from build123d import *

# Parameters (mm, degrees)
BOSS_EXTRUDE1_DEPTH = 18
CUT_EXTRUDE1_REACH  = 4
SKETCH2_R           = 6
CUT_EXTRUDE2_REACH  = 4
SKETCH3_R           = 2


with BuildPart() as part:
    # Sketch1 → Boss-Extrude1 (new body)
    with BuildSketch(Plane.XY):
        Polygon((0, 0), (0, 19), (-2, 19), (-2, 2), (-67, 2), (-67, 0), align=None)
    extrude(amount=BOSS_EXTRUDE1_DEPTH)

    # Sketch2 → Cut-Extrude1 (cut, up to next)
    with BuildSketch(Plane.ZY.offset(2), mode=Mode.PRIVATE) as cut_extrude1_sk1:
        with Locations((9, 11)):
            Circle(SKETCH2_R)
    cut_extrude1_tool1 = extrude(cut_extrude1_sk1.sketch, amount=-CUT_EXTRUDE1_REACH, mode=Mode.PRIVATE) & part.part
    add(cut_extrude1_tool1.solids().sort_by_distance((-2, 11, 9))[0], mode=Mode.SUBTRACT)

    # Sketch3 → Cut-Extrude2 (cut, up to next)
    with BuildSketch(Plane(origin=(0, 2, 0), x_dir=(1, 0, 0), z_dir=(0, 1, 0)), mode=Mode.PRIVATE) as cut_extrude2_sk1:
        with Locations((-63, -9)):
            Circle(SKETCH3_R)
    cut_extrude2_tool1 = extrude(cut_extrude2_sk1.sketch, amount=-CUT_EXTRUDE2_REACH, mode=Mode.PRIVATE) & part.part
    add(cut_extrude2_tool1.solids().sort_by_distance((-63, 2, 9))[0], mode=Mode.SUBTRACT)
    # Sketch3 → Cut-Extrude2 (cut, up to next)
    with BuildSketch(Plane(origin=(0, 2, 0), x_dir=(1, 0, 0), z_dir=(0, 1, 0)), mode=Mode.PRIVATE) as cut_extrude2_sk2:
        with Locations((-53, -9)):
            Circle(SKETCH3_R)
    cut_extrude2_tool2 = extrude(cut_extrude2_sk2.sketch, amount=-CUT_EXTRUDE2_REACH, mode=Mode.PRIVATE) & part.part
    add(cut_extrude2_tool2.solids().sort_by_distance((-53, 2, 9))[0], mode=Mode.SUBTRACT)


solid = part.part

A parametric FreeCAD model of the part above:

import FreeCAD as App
import Part
import Sketcher

V = App.Vector
Q = App.Units.Quantity

doc = App.newDocument("Part")
params = doc.addObject("Spreadsheet::Sheet", "Params")
for row, (alias, value) in enumerate([
    ("sketch1_width", "2 mm"),
    ("sketch1_width2", "65 mm"),
    ("sketch1_height", "19 mm"),
    ("pad1_length", "18 mm"),
    ("sketch2_diameter", "12 mm"),
    ("sketch3_diameter", "4 mm"),
    ("sketch4_diameter", "4 mm"),
], start=1):
    params.set(f"A{row}", alias)
    params.set(f"B{row}", "=" + value)
    params.setAlias(f"B{row}", alias)

body = doc.addObject("PartDesign::Body", "Body")

sketch1 = body.newObject("Sketcher::SketchObject", "Sketch")
sketch1.AttachmentSupport = (doc.getObject("XY_Plane"), [""])
sketch1.MapMode = "FlatFace"
sketch1.addGeometry([
    Part.LineSegment(V(0, 0, 0), V(0, 19, 0)),
    Part.LineSegment(V(0, 19, 0), V(-2, 19, 0)),
    Part.LineSegment(V(-2, 19, 0), V(-2, 2, 0)),
    Part.LineSegment(V(-2, 2, 0), V(-67, 2, 0)),
    Part.LineSegment(V(-67, 2, 0), V(-67, 0, 0)),
    Part.LineSegment(V(-67, 0, 0), V(0, 0, 0)),
], False)
sketch1.addConstraint([
    Sketcher.Constraint("Coincident", 0, 2, 1, 1),
    Sketcher.Constraint("Coincident", 1, 2, 2, 1),
    Sketcher.Constraint("Coincident", 2, 2, 3, 1),
    Sketcher.Constraint("Coincident", 3, 2, 4, 1),
    Sketcher.Constraint("Coincident", 4, 2, 5, 1),
    Sketcher.Constraint("Coincident", 5, 2, 0, 1),
    Sketcher.Constraint("Vertical", 0),
    Sketcher.Constraint("Horizontal", 1),
    Sketcher.Constraint("Vertical", 2),
    Sketcher.Constraint("Horizontal", 3),
    Sketcher.Constraint("Vertical", 4),
    Sketcher.Constraint("Horizontal", 5),
    Sketcher.Constraint("Coincident", 5, 2, -1, 1),
    Sketcher.Constraint("Equal", 1, 4),
    Sketcher.Constraint("DistanceX", 1, 2, 1, 1, Q("2 mm")),
    Sketcher.Constraint("DistanceX", 3, 2, 3, 1, Q("65 mm")),
    Sketcher.Constraint("DistanceY", 0, 1, 0, 2, Q("19 mm")),
])
sketch1.setExpression("Constraints[14]", "Params.sketch1_width")
sketch1.setExpression("Constraints[15]", "Params.sketch1_width2")
sketch1.setExpression("Constraints[16]", "Params.sketch1_height")
pad1 = body.newObject("PartDesign::Pad", "Pad")
pad1.Profile = sketch1
pad1.setExpression("Length", "Params.pad1_length")

sketch2 = body.newObject("Sketcher::SketchObject", "Sketch001")
sketch2.AttachmentSupport = (doc.getObject("YZ_Plane"), [""])
sketch2.MapMode = "FlatFace"
sketch2.AttachmentOffset = App.Placement(V(0, 0, -2), App.Rotation())
sketch2.addGeometry(Part.Circle(V(11, 9, 0), V(0, 0, 1), 6), False)
sketch2.addConstraint([
    Sketcher.Constraint("Diameter", 0, Q("12 mm")),
    Sketcher.Constraint("DistanceX", -1, 1, 0, 3, Q("11 mm")),
    Sketcher.Constraint("DistanceY", -1, 1, 0, 3, Q("9 mm")),
])
sketch2.setExpression("Constraints[0]", "Params.sketch2_diameter")
pocket1 = body.newObject("PartDesign::Pocket", "Pocket")
pocket1.Profile = sketch2
pocket1.Type = "UpToFirst"
pocket1.Reversed = True

sketch3 = body.newObject("Sketcher::SketchObject", "Sketch002")
sketch3.AttachmentSupport = (doc.getObject("XZ_Plane"), [""])
sketch3.MapMode = "FlatFace"
sketch3.AttachmentOffset = App.Placement(V(0, 0, -2), App.Rotation())
sketch3.addGeometry(Part.Circle(V(-63, 9, 0), V(0, 0, 1), 2), False)
sketch3.addConstraint([
    Sketcher.Constraint("Diameter", 0, Q("4 mm")),
    Sketcher.Constraint("DistanceX", 0, 3, -1, 1, Q("63 mm")),
    Sketcher.Constraint("DistanceY", -1, 1, 0, 3, Q("9 mm")),
])
sketch3.setExpression("Constraints[0]", "Params.sketch3_diameter")
pocket2 = body.newObject("PartDesign::Pocket", "Pocket001")
pocket2.Profile = sketch3
pocket2.Type = "UpToFirst"
pocket2.Reversed = True

sketch4 = body.newObject("Sketcher::SketchObject", "Sketch003")
sketch4.AttachmentSupport = (doc.getObject("XZ_Plane"), [""])
sketch4.MapMode = "FlatFace"
sketch4.AttachmentOffset = App.Placement(V(0, 0, -2), App.Rotation())
sketch4.addGeometry(Part.Circle(V(-53, 9, 0), V(0, 0, 1), 2), False)
sketch4.addConstraint([
    Sketcher.Constraint("Diameter", 0, Q("4 mm")),
    Sketcher.Constraint("DistanceX", 0, 3, -1, 1, Q("53 mm")),
    Sketcher.Constraint("DistanceY", -1, 1, 0, 3, Q("9 mm")),
])
sketch4.setExpression("Constraints[0]", "Params.sketch4_diameter")
pocket3 = body.newObject("PartDesign::Pocket", "Pocket002")
pocket3.Profile = sketch4
pocket3.Type = "UpToFirst"
pocket3.Reversed = True

doc.recompute()
